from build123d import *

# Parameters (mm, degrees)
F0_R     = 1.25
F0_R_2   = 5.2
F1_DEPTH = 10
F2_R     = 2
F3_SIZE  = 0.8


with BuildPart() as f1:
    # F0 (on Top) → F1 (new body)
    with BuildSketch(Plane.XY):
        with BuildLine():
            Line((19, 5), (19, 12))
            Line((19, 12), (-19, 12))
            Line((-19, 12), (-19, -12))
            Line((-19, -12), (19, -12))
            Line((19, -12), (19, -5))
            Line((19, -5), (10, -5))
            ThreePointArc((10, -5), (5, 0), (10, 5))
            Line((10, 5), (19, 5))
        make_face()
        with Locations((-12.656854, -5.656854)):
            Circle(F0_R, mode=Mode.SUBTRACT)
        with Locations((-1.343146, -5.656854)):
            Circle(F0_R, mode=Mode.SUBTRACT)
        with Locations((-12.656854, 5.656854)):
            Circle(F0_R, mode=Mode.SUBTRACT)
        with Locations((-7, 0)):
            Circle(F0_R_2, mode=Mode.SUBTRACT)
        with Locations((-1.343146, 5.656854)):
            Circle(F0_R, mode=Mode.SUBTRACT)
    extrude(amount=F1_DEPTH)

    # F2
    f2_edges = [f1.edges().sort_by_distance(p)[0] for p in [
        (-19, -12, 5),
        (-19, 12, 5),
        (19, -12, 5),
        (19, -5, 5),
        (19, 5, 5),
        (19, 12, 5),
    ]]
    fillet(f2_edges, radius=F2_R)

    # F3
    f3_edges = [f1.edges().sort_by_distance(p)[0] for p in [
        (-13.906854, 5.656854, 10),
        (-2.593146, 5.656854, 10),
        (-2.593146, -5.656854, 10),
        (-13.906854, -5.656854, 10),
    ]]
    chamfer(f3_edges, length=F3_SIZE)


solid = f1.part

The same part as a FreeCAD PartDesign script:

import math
import FreeCAD as App
import Part
import Sketcher

V = App.Vector
Q = App.Units.Quantity


def edges_at(feature, points):
    """Names of the edges that pass closest to the given points."""
    edges = feature.Shape.Edges
    near = lambda p: min(range(len(edges)), key=lambda i: edges[i].distToShape(Part.Vertex(*p))[0])
    return sorted({f"Edge{near(p) + 1}" for p in points})

doc = App.newDocument("Part")
params = doc.addObject("Spreadsheet::Sheet", "Params")
for row, (alias, value) in enumerate([
    ("sketch1_radius", "5 mm"),
    ("sketch1_diameter", "2.5 mm"),
    ("sketch1_diameter2", "10.4 mm"),
    ("sketch1_width", "38 mm"),
    ("sketch1_width2", "9 mm"),
    ("pad1_length", "10 mm"),
    ("fillet_radius", "2 mm"),
    ("chamfer_size", "0.8 mm"),
], start=1):
    params.set(f"A{row}", alias)
    params.set(f"B{row}", "=" + value)
    params.setAlias(f"B{row}", alias)

body = doc.addObject("PartDesign::Body", "Body")

# Sketch on XY plane
sketch1 = body.newObject("Sketcher::SketchObject", "Sketch")
sketch1.AttachmentSupport = (doc.getObject("XY_Plane"), [""])
sketch1.MapMode = "FlatFace"
sketch1.addGeometry(Part.LineSegment(V(19, 5, 0), V(19, 12, 0)), False)
sketch1.addGeometry(Part.LineSegment(V(19, 12, 0), V(-19, 12, 0)), False)
sketch1.addGeometry(Part.LineSegment(V(-19, 12, 0), V(-19, -12, 0)), False)
sketch1.addGeometry(Part.LineSegment(V(-19, -12, 0), V(19, -12, 0)), False)
sketch1.addGeometry(Part.LineSegment(V(19, -12, 0), V(19, -5, 0)), False)
sketch1.addGeometry(Part.LineSegment(V(19, -5, 0), V(10, -5, 0)), False)
sketch1.addGeometry(Part.ArcOfCircle(Part.Circle(V(10, 0, 0), V(0, 0, 1), 5), math.radians(90), math.radians(270)), False)
sketch1.addGeometry(Part.LineSegment(V(10, 5, 0), V(19, 5, 0)), False)
sketch1.addGeometry(Part.Circle(V(-12.7, -5.7, 0), V(0, 0, 1), 1.2), False)
sketch1.addGeometry(Part.Circle(V(-1.3, -5.7, 0), V(0, 0, 1), 1.2), False)
sketch1.addGeometry(Part.Circle(V(-7, 0, 0), V(0, 0, 1), 5.2), False)
sketch1.addGeometry(Part.Circle(V(-12.7, 5.7, 0), V(0, 0, 1), 1.2), False)
sketch1.addGeometry(Part.Circle(V(-1.3, 5.7, 0), V(0, 0, 1), 1.2), False)
sketch1.addConstraint(Sketcher.Constraint("Coincident", 0, 2, 1, 1))
sketch1.addConstraint(Sketcher.Constraint("Coincident", 1, 2, 2, 1))
sketch1.addConstraint(Sketcher.Constraint("Coincident", 2, 2, 3, 1))
sketch1.addConstraint(Sketcher.Constraint("Coincident", 3, 2, 4, 1))
sketch1.addConstraint(Sketcher.Constraint("Coincident", 4, 2, 5, 1))
sketch1.addConstraint(Sketcher.Constraint("Tangent", 5, 2, 6, 2))
sketch1.addConstraint(Sketcher.Constraint("Tangent", 6, 1, 7, 1))
sketch1.addConstraint(Sketcher.Constraint("Coincident", 7, 2, 0, 1))
sketch1.addConstraint(Sketcher.Constraint("Vertical", 0))
sketch1.addConstraint(Sketcher.Constraint("Horizontal", 1))
sketch1.addConstraint(Sketcher.Constraint("Vertical", 2))
sketch1.addConstraint(Sketcher.Constraint("Horizontal", 3))
sketch1.addConstraint(Sketcher.Constraint("Vertical", 4))
sketch1.addConstraint(Sketcher.Constraint("Horizontal", 5))
sketch1.addConstraint(Sketcher.Constraint("Horizontal", 7))
sketch1.addConstraint(Sketcher.Constraint("Equal", 8, 9))
sketch1.addConstraint(Sketcher.Constraint("Equal", 9, 11))
sketch1.addConstraint(Sketcher.Constraint("Equal", 11, 12))
sketch1.addConstraint(Sketcher.Constraint("Symmetric", 0, 2, 2, 2, -1, 1))
sketch1.addConstraint(Sketcher.Constraint("Symmetric", 8, 3, 11, 3, -1))
sketch1.addConstraint(Sketcher.Constraint("Symmetric", 9, 3, 12, 3, -1))
sketch1.addConstraint(Sketcher.Constraint("Symmetric", 4, 2, 7, 2, -1))
sketch1.addConstraint(Sketcher.Constraint("PointOnObject", 10, 3, -1))
sketch1.addConstraint(Sketcher.Constraint("Horizontal", 8, 3, 9, 3))
sketch1.addConstraint(Sketcher.Constraint("Radius", 6, Q("5 mm")))
sketch1.addConstraint(Sketcher.Constraint("Diameter", 8, Q("2.5 mm")))
sketch1.addConstraint(Sketcher.Constraint("Diameter", 10, Q("10.4 mm")))
sketch1.addConstraint(Sketcher.Constraint("DistanceX", 1, 2, 1, 1, Q("38 mm")))
sketch1.addConstraint(Sketcher.Constraint("DistanceX", 5, 2, 5, 1, Q("9 mm")))
sketch1.addConstraint(Sketcher.Constraint("DistanceY", 0, 1, 0, 2, Q("7 mm")))
sketch1.addConstraint(Sketcher.Constraint("DistanceX", 10, 3, -1, 1, Q("7 mm")))
sketch1.addConstraint(Sketcher.Constraint("DistanceX", 8, 3, -1, 1, Q("12.656854 mm")))
sketch1.addConstraint(Sketcher.Constraint("DistanceY", 8, 3, -1, 1, Q("5.656854 mm")))
sketch1.addConstraint(Sketcher.Constraint("DistanceX", 9, 3, -1, 1, Q("1.343146 mm")))
sketch1.setExpression("Constraints[24]", "Params.sketch1_radius")
sketch1.setExpression("Constraints[25]", "Params.sketch1_diameter")
sketch1.setExpression("Constraints[26]", "Params.sketch1_diameter2")
sketch1.setExpression("Constraints[27]", "Params.sketch1_width")
sketch1.setExpression("Constraints[28]", "Params.sketch1_width2")
pad1 = body.newObject("PartDesign::Pad", "Pad")
pad1.Profile = sketch1
pad1.setExpression("Length", "Params.pad1_length")
doc.recompute()

fillet = body.newObject("PartDesign::Fillet", "Fillet")
fillet.Base = (pad1, edges_at(pad1, [
    (-19, -12, 5),
    (-19, 12, 5),
    (19, -12, 5),
    (19, -5, 5),
    (19, 5, 5),
    (19, 12, 5),
]))
fillet.setExpression("Radius", "Params.fillet_radius")
doc.recompute()

chamfer = body.newObject("PartDesign::Chamfer", "Chamfer")
chamfer.Base = (fillet, edges_at(fillet, [
    (-13.907, 5.657, 10),
    (-2.593, 5.657, 10),
    (-2.593, -5.657, 10),
    (-13.907, -5.657, 10),
]))
chamfer.setExpression("Size", "Params.chamfer_size")

doc.recompute()
